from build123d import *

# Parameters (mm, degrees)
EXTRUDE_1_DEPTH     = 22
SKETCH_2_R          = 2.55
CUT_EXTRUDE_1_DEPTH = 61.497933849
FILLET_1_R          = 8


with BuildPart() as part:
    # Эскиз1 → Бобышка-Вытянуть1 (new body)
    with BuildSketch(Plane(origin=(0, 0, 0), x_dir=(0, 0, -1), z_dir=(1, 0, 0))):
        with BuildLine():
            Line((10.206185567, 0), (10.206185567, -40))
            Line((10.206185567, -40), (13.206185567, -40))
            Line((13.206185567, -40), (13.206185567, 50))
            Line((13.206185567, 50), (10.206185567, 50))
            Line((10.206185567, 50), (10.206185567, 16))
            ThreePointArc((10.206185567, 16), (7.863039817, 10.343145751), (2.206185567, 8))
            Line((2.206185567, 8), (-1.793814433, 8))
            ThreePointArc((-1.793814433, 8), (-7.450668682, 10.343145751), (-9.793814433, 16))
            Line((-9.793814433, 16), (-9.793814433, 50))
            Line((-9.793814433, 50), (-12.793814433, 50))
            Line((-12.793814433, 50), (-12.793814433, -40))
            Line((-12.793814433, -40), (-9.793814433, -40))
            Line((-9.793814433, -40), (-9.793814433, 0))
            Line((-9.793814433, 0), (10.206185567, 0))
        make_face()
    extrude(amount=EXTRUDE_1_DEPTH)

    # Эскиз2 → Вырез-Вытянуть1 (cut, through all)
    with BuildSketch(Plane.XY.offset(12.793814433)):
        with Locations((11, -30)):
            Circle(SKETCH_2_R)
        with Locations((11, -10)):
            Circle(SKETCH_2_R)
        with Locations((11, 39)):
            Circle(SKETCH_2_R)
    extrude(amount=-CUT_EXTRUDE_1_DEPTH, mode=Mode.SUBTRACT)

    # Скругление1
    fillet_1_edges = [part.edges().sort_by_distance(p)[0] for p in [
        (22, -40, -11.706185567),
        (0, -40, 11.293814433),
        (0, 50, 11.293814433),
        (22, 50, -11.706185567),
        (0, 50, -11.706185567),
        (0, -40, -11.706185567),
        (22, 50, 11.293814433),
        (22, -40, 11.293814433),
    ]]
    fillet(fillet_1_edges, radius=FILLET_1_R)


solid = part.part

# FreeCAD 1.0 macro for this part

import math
import FreeCAD as App
import Part
import Sketcher
from FreeCAD import Vector
Q = App.Units.Quantity


def edges_at(feature, points):
    """Names of the edges that pass closest to the given points."""
    edges = feature.Shape.Edges
    near = lambda p: min(range(len(edges)), key=lambda i: edges[i].distToShape(Part.Vertex(*p))[0])
    return sorted({f"Edge{near(p) + 1}" for p in points})

doc = App.newDocument("Part")
params = doc.addObject("Spreadsheet::Sheet", "Params")
for row, (alias, value) in enumerate([
    ("sketch1_radius", "8 mm"),
    ("sketch1_width", "40 mm"),
    ("sketch1_width2", "90 mm"),
    ("sketch1_width3", "34 mm"),
    ("sketch1_height", "3 mm"),
    ("pad1_length", "22 mm"),
    ("sketch2_diameter", "5.1 mm"),
    ("fillet_radius", "8 mm"),
], start=1):
    params.set(f"A{row}", alias)
    params.set(f"B{row}", "=" + value)
    params.setAlias(f"B{row}", alias)

body = doc.addObject("PartDesign::Body", "Body")

sketch1 = body.newObject("Sketcher::SketchObject", "Sketch")
sketch1.AttachmentSupport = (doc.getObject("YZ_Plane"), [""])
sketch1.MapMode = "FlatFace"
sketch1.addGeometry(Part.LineSegment(Vector(0, -10.2, 0), Vector(-40, -10.2, 0)), False)
sketch1.addGeometry(Part.LineSegment(Vector(-40, -10.2, 0), Vector(-40, -13.2, 0)), False)
sketch1.addGeometry(Part.LineSegment(Vector(-40, -13.2, 0), Vector(50, -13.2, 0)), False)
sketch1.addGeometry(Part.LineSegment(Vector(50, -13.2, 0), Vector(50, -10.2, 0)), False)
sketch1.addGeometry(Part.LineSegment(Vector(50, -10.2, 0), Vector(16, -10.2, 0)), False)
sketch1.addGeometry(Part.ArcOfCircle(Part.Circle(Vector(16, -2.2, 0), Vector(0, 0, 1), 8), math.radians(180), math.radians(270)), False)
sketch1.addGeometry(Part.LineSegment(Vector(8, -2.2, 0), Vector(8, 1.8, 0)), False)
sketch1.addGeometry(Part.ArcOfCircle(Part.Circle(Vector(16, 1.8, 0), Vector(0, 0, 1), 8), math.radians(90), math.radians(180)), False)
sketch1.addGeometry(Part.LineSegment(Vector(16, 9.8, 0), Vector(50, 9.8, 0)), False)
sketch1.addGeometry(Part.LineSegment(Vector(50, 9.8, 0), Vector(50, 12.8, 0)), False)
sketch1.addGeometry(Part.LineSegment(Vector(50, 12.8, 0), Vector(-40, 12.8, 0)), False)
sketch1.addGeometry(Part.LineSegment(Vector(-40, 12.8, 0), Vector(-40, 9.8, 0)), False)
sketch1.addGeometry(Part.LineSegment(Vector(-40, 9.8, 0), Vector(0, 9.8, 0)), False)
sketch1.addGeometry(Part.LineSegment(Vector(0, 9.8, 0), Vector(0, -10.2, 0)), False)
sketch1.addConstraint(Sketcher.Constraint("Coincident", 0, 2, 1, 1))
sketch1.addConstraint(Sketcher.Constraint("Coincident", 1, 2, 2, 1))
sketch1.addConstraint(Sketcher.Constraint("Coincident", 2, 2, 3, 1))
sketch1.addConstraint(Sketcher.Constraint("Coincident", 3, 2, 4, 1))
sketch1.addConstraint(Sketcher.Constraint("Tangent", 4, 2, 5, 2))
sketch1.addConstraint(Sketcher.Constraint("Tangent", 5, 1, 6, 1))
sketch1.addConstraint(Sketcher.Constraint("Tangent", 6, 2, 7, 2))
sketch1.addConstraint(Sketcher.Constraint("Tangent", 7, 1, 8, 1))
sketch1.addConstraint(Sketcher.Constraint("Coincident", 8, 2, 9, 1))
sketch1.addConstraint(Sketcher.Constraint("Coincident", 9, 2, 10, 1))
sketch1.addConstraint(Sketcher.Constraint("Coincident", 10, 2, 11, 1))
sketch1.addConstraint(Sketcher.Constraint("Coincident", 11, 2, 12, 1))
sketch1.addConstraint(Sketcher.Constraint("Coincident", 12, 2, 13, 1))
sketch1.addConstraint(Sketcher.Constraint("Coincident", 13, 2, 0, 1))
sketch1.addConstraint(Sketcher.Constraint("Horizontal", 0))
sketch1.addConstraint(Sketcher.Constraint("Vertical", 1))
sketch1.addConstraint(Sketcher.Constraint("Horizontal", 2))
sketch1.addConstraint(Sketcher.Constraint("Vertical", 3))
sketch1.addConstraint(Sketcher.Constraint("Horizontal", 4))
sketch1.addConstraint(Sketcher.Constraint("Vertical", 6))
sketch1.addConstraint(Sketcher.Constraint("Horizontal", 8))
sketch1.addConstraint(Sketcher.Constraint("Vertical", 9))
sketch1.addConstraint(Sketcher.Constraint("Horizontal", 10))
sketch1.addConstraint(Sketcher.Constraint("Vertical", 11))
sketch1.addConstraint(Sketcher.Constraint("Horizontal", 12))
sketch1.addConstraint(Sketcher.Constraint("Vertical", 13))
sketch1.addConstraint(Sketcher.Constraint("Equal", 5, 7))
sketch1.addConstraint(Sketcher.Constraint("PointOnObject", 12, 2, -2))
sketch1.addConstraint(Sketcher.Constraint("Horizontal", 0, 2, 3, 2))
sketch1.addConstraint(Sketcher.Constraint("Horizontal", 8, 2, 11, 2))
sketch1.addConstraint(Sketcher.Constraint("Vertical", 3, 2, 8, 2))
sketch1.addConstraint(Sketcher.Constraint("Vertical", 1, 2, 10, 2))
sketch1.addConstraint(Sketcher.Constraint("Equal", 3, 9))
sketch1.addConstraint(Sketcher.Constraint("Radius", 5, Q("8 mm")))
sketch1.addConstraint(Sketcher.Constraint("DistanceX", 0, 2, 0, 1, Q("40 mm")))
sketch1.addConstraint(Sketcher.Constraint("DistanceX", 2, 1, 2, 2, Q("90 mm")))
sketch1.addConstraint(Sketcher.Constraint("DistanceX", 4, 2, 4, 1, Q("34 mm")))
sketch1.addConstraint(Sketcher.Constraint("DistanceY", 1, 2, 1, 1, Q("3 mm")))
sketch1.addConstraint(Sketcher.Constraint("DistanceY", 6, 1, 6, 2, Q("4 mm")))
sketch1.addConstraint(Sketcher.Constraint("DistanceY", 5, 3, -1, 1, Q("2.206186 mm")))
sketch1.setExpression("Constraints[33]", "Params.sketch1_radius")
sketch1.setExpression("Constraints[34]", "Params.sketch1_width")
sketch1.setExpression("Constraints[35]", "Params.sketch1_width2")
sketch1.setExpression("Constraints[36]", "Params.sketch1_width3")
sketch1.setExpression("Constraints[37]", "Params.sketch1_height")
pad1 = body.newObject("PartDesign::Pad", "Pad")
pad1.Profile = sketch1
pad1.setExpression("Length", "Params.pad1_length")

sketch2 = body.newObject("Sketcher::SketchObject", "Sketch001")
sketch2.AttachmentSupport = (doc.getObject("XY_Plane"), [""])
sketch2.MapMode = "FlatFace"
sketch2.AttachmentOffset = App.Placement(Vector(0, 0, 12.793814), App.Rotation())
sketch2.addGeometry(Part.Circle(Vector(11, -30, 0), Vector(0, 0, 1), 2.5), False)
sketch2.addGeometry(Part.Circle(Vector(11, -10, 0), Vector(0, 0, 1), 2.5), False)
sketch2.addGeometry(Part.Circle(Vector(11, 39, 0), Vector(0, 0, 1), 2.5), False)
sketch2.addConstraint(Sketcher.Constraint("Equal", 0, 1))
sketch2.addConstraint(Sketcher.Constraint("Equal", 1, 2))
sketch2.addConstraint(Sketcher.Constraint("Vertical", 0, 3, 1, 3))
sketch2.addConstraint(Sketcher.Constraint("Vertical", 1, 3, 2, 3))
sketch2.addConstraint(Sketcher.Constraint("Diameter", 0, Q("5.1 mm")))
sketch2.addConstraint(Sketcher.Constraint("DistanceX", -1, 1, 0, 3, Q("11 mm")))
sketch2.addConstraint(Sketcher.Constraint("DistanceY", 0, 3, -1, 1, Q("30 mm")))
sketch2.addConstraint(Sketcher.Constraint("DistanceY", 1, 3, -1, 1, Q("10 mm")))
sketch2.addConstraint(Sketcher.Constraint("DistanceY", -1, 1, 2, 3, Q("39 mm")))
sketch2.setExpression("Constraints[4]", "Params.sketch2_diameter")
pocket1 = body.newObject("PartDesign::Pocket", "Pocket")
pocket1.Profile = sketch2
pocket1.Type = "ThroughAll"
doc.recompute()

fillet = body.newObject("PartDesign::Fillet", "Fillet")
fillet.Base = (pocket1, edges_at(pocket1, [
    (22, -40, -11.706),
    (0, -40, 11.294),
    (0, 50, 11.294),
    (22, 50, -11.706),
    (0, 50, -11.706),
    (0, -40, -11.706),
    (22, 50, 11.294),
    (22, -40, 11.294),
]))
fillet.setExpression("Radius", "Params.fillet_radius")

doc.recompute()
